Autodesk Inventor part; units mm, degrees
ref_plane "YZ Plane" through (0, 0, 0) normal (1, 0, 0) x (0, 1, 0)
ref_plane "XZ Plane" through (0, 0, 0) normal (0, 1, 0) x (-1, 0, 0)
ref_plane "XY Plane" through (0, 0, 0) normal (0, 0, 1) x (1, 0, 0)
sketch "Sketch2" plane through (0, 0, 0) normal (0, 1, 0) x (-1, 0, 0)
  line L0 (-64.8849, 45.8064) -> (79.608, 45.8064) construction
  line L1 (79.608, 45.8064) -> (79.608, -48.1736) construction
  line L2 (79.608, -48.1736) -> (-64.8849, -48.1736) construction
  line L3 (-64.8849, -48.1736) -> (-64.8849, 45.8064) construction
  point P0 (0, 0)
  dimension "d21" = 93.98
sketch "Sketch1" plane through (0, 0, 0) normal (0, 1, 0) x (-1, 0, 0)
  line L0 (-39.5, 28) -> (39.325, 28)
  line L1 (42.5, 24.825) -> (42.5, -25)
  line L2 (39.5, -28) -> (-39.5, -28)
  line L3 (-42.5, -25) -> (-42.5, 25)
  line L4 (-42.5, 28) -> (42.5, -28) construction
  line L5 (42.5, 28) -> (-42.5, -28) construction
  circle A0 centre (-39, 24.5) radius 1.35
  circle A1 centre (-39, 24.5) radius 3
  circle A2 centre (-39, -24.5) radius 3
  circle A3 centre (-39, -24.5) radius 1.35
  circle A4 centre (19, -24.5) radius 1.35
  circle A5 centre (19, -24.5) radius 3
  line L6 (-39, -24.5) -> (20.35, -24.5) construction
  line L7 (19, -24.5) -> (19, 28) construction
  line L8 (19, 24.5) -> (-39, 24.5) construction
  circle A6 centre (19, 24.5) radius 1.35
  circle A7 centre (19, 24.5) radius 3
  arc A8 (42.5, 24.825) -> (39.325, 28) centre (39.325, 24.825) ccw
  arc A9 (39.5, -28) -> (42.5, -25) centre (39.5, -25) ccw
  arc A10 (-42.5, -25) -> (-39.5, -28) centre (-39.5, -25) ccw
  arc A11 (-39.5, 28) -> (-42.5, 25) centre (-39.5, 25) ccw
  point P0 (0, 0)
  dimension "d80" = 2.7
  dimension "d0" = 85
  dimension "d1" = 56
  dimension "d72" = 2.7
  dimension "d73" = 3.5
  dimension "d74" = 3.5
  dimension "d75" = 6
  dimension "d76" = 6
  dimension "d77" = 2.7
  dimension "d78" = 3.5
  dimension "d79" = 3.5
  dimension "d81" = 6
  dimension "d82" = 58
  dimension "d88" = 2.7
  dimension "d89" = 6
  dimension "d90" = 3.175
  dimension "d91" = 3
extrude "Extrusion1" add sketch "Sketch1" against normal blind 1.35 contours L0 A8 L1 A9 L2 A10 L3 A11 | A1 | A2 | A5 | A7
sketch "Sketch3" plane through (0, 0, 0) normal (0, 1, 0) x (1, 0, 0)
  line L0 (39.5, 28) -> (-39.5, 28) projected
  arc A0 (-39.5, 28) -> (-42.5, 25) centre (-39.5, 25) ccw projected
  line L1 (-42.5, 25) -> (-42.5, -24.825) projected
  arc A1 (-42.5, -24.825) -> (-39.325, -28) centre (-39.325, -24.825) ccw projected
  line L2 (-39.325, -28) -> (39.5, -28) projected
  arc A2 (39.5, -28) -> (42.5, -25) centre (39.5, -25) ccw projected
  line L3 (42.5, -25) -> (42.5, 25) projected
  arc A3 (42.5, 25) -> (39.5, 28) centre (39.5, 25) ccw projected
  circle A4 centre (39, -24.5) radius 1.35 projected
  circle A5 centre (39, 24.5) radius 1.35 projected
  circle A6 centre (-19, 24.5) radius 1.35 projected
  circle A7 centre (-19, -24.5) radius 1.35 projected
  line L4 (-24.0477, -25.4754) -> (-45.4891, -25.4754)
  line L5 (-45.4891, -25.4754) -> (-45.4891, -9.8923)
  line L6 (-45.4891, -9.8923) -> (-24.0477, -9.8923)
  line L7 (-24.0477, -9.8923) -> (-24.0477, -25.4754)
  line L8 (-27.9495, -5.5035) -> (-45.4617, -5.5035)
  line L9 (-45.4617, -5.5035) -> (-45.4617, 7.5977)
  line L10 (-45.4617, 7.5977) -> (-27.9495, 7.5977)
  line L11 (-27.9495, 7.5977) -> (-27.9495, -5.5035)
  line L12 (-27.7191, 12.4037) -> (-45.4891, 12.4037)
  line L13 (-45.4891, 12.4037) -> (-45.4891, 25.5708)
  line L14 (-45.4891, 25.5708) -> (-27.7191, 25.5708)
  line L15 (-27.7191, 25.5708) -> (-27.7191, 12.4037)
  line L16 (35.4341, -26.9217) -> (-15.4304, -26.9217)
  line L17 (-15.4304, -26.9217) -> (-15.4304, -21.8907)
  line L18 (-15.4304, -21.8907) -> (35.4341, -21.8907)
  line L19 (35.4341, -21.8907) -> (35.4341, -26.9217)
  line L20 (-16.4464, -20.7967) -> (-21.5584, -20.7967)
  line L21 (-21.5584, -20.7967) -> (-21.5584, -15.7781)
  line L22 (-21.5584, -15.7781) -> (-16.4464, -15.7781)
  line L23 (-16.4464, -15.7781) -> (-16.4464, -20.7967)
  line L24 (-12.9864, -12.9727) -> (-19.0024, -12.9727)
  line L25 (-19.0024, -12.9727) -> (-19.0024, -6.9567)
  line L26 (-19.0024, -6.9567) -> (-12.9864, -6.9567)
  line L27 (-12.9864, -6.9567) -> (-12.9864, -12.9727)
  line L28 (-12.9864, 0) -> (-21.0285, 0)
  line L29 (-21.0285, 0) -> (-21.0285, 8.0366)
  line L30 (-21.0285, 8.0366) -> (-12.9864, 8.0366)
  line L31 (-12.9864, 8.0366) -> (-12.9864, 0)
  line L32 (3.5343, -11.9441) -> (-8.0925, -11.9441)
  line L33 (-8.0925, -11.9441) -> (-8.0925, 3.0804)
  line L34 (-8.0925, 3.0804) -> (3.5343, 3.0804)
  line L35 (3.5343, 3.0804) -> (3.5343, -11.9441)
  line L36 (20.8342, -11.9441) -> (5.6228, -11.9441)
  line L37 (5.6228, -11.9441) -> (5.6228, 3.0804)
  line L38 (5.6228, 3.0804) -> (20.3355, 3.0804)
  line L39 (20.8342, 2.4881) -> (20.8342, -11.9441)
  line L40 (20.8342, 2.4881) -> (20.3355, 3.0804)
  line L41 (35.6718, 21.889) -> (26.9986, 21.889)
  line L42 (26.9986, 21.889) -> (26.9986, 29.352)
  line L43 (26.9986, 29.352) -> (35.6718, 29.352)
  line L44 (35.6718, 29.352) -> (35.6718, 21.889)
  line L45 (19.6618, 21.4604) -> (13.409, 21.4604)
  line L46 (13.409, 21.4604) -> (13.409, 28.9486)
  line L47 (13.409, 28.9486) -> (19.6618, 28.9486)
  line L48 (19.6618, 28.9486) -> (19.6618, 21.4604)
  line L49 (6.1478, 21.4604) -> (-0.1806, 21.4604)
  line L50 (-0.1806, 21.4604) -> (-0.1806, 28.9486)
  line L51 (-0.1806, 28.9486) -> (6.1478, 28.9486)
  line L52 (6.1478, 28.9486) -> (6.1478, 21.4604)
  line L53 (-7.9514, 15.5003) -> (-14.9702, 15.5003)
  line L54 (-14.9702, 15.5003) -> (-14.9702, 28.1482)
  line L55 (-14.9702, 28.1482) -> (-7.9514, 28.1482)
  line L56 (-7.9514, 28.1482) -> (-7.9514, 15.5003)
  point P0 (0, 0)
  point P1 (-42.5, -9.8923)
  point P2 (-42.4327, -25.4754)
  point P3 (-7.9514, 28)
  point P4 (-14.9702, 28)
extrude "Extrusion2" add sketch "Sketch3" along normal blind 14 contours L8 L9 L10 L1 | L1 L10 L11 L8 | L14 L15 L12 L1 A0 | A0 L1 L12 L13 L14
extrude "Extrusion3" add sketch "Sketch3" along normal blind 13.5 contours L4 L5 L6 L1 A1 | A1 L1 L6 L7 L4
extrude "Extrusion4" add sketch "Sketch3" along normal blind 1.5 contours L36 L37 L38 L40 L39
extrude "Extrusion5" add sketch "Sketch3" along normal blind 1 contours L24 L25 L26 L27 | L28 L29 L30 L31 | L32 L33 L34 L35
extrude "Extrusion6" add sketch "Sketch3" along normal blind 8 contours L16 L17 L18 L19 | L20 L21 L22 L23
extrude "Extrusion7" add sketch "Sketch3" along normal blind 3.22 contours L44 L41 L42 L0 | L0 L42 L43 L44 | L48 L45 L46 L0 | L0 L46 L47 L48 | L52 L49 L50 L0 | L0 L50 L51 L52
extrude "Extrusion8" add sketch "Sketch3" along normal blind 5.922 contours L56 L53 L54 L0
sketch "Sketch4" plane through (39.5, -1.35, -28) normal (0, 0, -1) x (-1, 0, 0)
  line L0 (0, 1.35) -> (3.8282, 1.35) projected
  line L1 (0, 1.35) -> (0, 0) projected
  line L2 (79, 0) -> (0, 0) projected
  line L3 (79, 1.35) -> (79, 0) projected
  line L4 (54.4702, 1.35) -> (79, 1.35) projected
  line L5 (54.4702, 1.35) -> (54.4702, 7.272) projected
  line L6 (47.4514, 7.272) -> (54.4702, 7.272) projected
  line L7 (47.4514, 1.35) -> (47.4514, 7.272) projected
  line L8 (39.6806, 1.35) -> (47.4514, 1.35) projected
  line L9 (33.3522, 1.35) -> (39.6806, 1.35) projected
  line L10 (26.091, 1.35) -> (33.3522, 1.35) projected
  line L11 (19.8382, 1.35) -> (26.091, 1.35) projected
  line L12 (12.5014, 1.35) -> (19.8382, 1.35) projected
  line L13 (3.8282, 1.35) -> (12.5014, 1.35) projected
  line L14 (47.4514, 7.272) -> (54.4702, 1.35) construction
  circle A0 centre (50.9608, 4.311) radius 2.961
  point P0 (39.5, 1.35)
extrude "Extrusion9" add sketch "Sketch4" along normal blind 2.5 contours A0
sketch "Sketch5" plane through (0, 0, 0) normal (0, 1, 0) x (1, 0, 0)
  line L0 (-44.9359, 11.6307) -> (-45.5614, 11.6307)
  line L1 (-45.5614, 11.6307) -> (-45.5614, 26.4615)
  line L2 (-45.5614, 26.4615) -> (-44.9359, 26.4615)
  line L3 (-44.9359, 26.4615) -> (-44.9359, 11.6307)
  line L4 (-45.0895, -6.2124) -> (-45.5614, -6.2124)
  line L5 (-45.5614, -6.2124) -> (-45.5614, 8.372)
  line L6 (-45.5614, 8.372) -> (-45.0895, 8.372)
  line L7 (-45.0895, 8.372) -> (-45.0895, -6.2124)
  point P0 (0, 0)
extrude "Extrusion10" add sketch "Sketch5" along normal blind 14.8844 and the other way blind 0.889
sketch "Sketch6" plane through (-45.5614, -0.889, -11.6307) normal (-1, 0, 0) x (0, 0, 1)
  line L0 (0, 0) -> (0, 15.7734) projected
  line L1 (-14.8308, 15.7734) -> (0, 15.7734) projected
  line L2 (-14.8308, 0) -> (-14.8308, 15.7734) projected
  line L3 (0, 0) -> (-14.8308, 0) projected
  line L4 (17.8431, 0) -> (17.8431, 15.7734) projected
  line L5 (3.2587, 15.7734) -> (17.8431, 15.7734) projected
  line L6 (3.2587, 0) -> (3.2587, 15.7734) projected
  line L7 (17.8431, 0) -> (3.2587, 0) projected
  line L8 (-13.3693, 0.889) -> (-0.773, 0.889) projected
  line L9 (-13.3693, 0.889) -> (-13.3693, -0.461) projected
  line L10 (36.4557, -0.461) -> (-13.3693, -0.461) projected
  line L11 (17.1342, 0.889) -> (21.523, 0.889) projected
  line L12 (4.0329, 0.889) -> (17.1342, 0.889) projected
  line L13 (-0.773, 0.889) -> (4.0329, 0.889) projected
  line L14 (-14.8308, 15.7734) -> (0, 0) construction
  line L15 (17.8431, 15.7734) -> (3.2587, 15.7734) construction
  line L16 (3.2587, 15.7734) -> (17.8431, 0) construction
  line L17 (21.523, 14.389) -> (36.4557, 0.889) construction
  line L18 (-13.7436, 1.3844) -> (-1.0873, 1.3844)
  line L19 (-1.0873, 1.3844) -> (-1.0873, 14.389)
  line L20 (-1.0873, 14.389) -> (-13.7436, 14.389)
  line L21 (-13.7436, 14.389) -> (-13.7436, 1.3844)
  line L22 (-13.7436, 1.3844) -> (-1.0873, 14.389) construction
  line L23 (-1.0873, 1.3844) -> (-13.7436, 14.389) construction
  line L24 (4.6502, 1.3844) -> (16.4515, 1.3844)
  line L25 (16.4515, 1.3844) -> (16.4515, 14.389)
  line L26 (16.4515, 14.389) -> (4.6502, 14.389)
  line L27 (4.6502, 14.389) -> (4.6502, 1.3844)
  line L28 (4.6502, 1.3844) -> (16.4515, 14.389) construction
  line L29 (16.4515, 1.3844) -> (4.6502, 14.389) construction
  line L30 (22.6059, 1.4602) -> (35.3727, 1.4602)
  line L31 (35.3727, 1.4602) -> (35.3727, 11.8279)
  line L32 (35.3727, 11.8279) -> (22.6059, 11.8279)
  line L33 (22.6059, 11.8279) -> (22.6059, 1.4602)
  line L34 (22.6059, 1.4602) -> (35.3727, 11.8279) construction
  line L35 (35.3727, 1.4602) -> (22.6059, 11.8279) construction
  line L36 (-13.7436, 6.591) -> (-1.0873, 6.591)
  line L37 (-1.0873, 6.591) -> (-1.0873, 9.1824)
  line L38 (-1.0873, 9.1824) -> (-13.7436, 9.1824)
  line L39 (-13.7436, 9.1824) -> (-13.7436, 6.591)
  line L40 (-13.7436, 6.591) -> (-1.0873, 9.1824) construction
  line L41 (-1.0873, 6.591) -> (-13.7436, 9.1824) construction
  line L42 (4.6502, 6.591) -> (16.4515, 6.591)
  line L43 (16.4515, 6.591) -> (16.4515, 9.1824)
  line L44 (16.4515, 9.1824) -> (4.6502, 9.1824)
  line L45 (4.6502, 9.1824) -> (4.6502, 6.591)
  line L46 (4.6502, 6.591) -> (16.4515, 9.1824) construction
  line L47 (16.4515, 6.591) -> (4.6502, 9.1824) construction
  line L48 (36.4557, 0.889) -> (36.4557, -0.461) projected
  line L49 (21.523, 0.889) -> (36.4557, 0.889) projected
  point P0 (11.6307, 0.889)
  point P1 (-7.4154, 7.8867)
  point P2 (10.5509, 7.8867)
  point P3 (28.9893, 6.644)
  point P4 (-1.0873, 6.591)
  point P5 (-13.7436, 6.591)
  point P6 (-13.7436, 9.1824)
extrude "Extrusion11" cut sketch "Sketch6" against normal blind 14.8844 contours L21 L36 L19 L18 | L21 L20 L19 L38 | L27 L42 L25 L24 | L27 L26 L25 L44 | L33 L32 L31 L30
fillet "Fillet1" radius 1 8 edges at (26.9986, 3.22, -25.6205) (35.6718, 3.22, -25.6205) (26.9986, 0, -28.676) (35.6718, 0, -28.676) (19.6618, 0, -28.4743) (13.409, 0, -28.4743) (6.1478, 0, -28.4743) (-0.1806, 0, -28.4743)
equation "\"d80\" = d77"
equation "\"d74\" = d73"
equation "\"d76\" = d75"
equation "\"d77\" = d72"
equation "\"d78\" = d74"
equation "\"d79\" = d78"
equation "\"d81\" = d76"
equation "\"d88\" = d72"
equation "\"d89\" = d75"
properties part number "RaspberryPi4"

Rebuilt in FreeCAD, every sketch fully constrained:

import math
import FreeCAD as App
import Part
import Sketcher
from FreeCAD import Vector


def edges_at(feature, points):
    """Names of the edges that pass closest to the given points."""
    edges = feature.Shape.Edges
    near = lambda p: min(range(len(edges)), key=lambda i: edges[i].distToShape(Part.Vertex(*p))[0])
    return sorted({f"Edge{near(p) + 1}" for p in points})


def add_polygon(sketch, points):
    """Adds a closed chain of lines whose ends are joined by coincident constraints."""
    first, n = sketch.GeometryCount, len(points)
    for a, b in zip(points, points[1:] + points[:1]):
        sketch.addGeometry(Part.LineSegment(App.Vector(*a, 0), App.Vector(*b, 0)), False)
    for i in range(n):
        sketch.addConstraint(Sketcher.Constraint("Coincident", first + i, 2, first + (i + 1) % n, 1))

doc = App.newDocument("Part")
params = doc.addObject("Spreadsheet::Sheet", "Params")
for row, (alias, value) in enumerate([
    ("sketch1_radius", "3 mm"),
    ("sketch1_diameter", "2.7 mm"),
    ("sketch1_width", "79 mm"),
    ("sketch1_height", "50 mm"),
    ("pad1_length", "1.35 mm"),
    ("sketch2_width", "17.77 mm"),
    ("pad2_length", "14 mm"),
    ("pad3_length", "13.5 mm"),
    ("pad4_length", "1.5 mm"),
    ("pad5_length", "1 mm"),
    ("pad6_length", "8 mm"),
    ("pad7_length", "3.22 mm"),
    ("pad8_length", "5.922 mm"),
    ("pad9_length", "2.5 mm"),
    ("pad10_length", "14.8844 mm"),
    ("pad10_length2", "0.889 mm"),
    ("pocket1_length", "14.8844 mm"),
    ("fillet_radius", "1 mm"),
], start=1):
    params.set(f"A{row}", alias)
    params.set(f"B{row}", "=" + value)
    params.setAlias(f"B{row}", alias)

body = doc.addObject("PartDesign::Body", "Body")

# Sketch on XZ plane
sketch1 = doc.addObject("Sketcher::SketchObject", "Sketch")
body.addObject(sketch1)
sketch1.AttachmentSupport = (doc.XZ_Plane, [""])
sketch1.MapMode = "FlatFace"
sketch1.addGeometry(Part.LineSegment(Vector(-39.325, 28, 0), Vector(39.5, 28, 0)), False)
sketch1.addGeometry(Part.ArcOfCircle(Part.Circle(Vector(39.5, 25, 0), Vector(0, 0, 1), 3), math.radians(0), math.radians(90)), False)
sketch1.addGeometry(Part.LineSegment(Vector(42.5, 25, 0), Vector(42.5, -25, 0)), False)
sketch1.addGeometry(Part.ArcOfCircle(Part.Circle(Vector(39.5, -25, 0), Vector(0, 0, 1), 3), math.radians(-90), math.radians(0)), False)
sketch1.addGeometry(Part.LineSegment(Vector(39.5, -28, 0), Vector(-39.5, -28, 0)), False)
sketch1.addGeometry(Part.ArcOfCircle(Part.Circle(Vector(-39.5, -25, 0), Vector(0, 0, 1), 3), math.radians(180), math.radians(270)), False)
sketch1.addGeometry(Part.LineSegment(Vector(-42.5, -25, 0), Vector(-42.5, 24.825, 0)), False)
sketch1.addGeometry(Part.ArcOfCircle(Part.Circle(Vector(-39.325, 24.825, 0), Vector(0, 0, 1), 3.175), math.radians(90), math.radians(180)), False)
sketch1.addGeometry(Part.Circle(Vector(39, -24.5, 0), Vector(0, 0, 1), 1.35), False)
sketch1.addGeometry(Part.Circle(Vector(-19, -24.5, 0), Vector(0, 0, 1), 1.35), False)
sketch1.addGeometry(Part.Circle(Vector(39, 24.5, 0), Vector(0, 0, 1), 1.35), False)
sketch1.addGeometry(Part.Circle(Vector(-19, 24.5, 0), Vector(0, 0, 1), 1.35), False)
sketch1.addConstraint(Sketcher.Constraint("Tangent", 0, 2, 1, 2))
sketch1.addConstraint(Sketcher.Constraint("Tangent", 1, 1, 2, 1))
sketch1.addConstraint(Sketcher.Constraint("Tangent", 2, 2, 3, 2))
sketch1.addConstraint(Sketcher.Constraint("Tangent", 3, 1, 4, 1))
sketch1.addConstraint(Sketcher.Constraint("Tangent", 4, 2, 5, 2))
sketch1.addConstraint(Sketcher.Constraint("Tangent", 5, 1, 6, 1))
sketch1.addConstraint(Sketcher.Constraint("Tangent", 6, 2, 7, 2))
sketch1.addConstraint(Sketcher.Constraint("Tangent", 7, 1, 0, 1))
sketch1.addConstraint(Sketcher.Constraint("Horizontal", 0))
sketch1.addConstraint(Sketcher.Constraint("Vertical", 2))
sketch1.addConstraint(Sketcher.Constraint("Horizontal", 4))
sketch1.addConstraint(Sketcher.Constraint("Vertical", 6))
sketch1.addConstraint(Sketcher.Constraint("Equal", 1, 3))
sketch1.addConstraint(Sketcher.Constraint("Equal", 3, 5))
sketch1.addConstraint(Sketcher.Constraint("Equal", 8, 9))
sketch1.addConstraint(Sketcher.Constraint("Equal", 9, 10))
sketch1.addConstraint(Sketcher.Constraint("Equal", 10, 11))
sketch1.addConstraint(Sketcher.Constraint("Symmetric", 1, 3, 5, 3, -1, 1))
sketch1.addConstraint(Sketcher.Constraint("Symmetric", 8, 3, 10, 3, -1))
sketch1.addConstraint(Sketcher.Constraint("Symmetric", 9, 3, 11, 3, -1))
sketch1.addConstraint(Sketcher.Constraint("Horizontal", 8, 3, 9, 3))
sketch1.addConstraint(Sketcher.Constraint("Radius", 1, 3.0))
sketch1.addConstraint(Sketcher.Constraint("Diameter", 8, 2.7))
sketch1.addConstraint(Sketcher.Constraint("Radius", 7, 3.175))
sketch1.addConstraint(Sketcher.Constraint("DistanceX", 9, 3, 8, 3, 58.0))
sketch1.addConstraint(Sketcher.Constraint("DistanceY", 10, 3, 0, 2, 3.5))
sketch1.addConstraint(Sketcher.Constraint("DistanceX", 10, 3, 1, 1, 3.5))
sketch1.addConstraint(Sketcher.Constraint("DistanceX", 4, 2, 4, 1, 79.0))
sketch1.addConstraint(Sketcher.Constraint("DistanceY", 2, 2, 2, 1, 50.0))
sketch1.setExpression("Constraints[21]", "Params.sketch1_radius")
sketch1.setExpression("Constraints[22]", "Params.sketch1_diameter")
sketch1.setExpression("Constraints[27]", "Params.sketch1_width")
sketch1.setExpression("Constraints[28]", "Params.sketch1_height")
pad1 = doc.addObject("PartDesign::Pad", "Pad")
body.addObject(pad1)
pad1.Profile = sketch1
pad1.setExpression("Length", "Params.pad1_length")

# Sketch on XZ plane
sketch2 = doc.addObject("Sketcher::SketchObject", "Sketch001")
body.addObject(sketch2)
sketch2.AttachmentSupport = (doc.XZ_Plane, [""])
sketch2.MapMode = "FlatFace"
add_polygon(sketch2, [(-45.4617, 5.5035), (-27.9495, 5.5035), (-27.9495, -7.5977), (-45.4617, -7.5977)])  # lines 0-3
add_polygon(sketch2, [(-27.7191, -25.5708), (-45.4891, -25.5708), (-45.4891, -12.4037), (-27.7191, -12.4037)])  # lines 4-7
sketch2.addConstraint(Sketcher.Constraint("Horizontal", 0))
sketch2.addConstraint(Sketcher.Constraint("Vertical", 1))
sketch2.addConstraint(Sketcher.Constraint("Horizontal", 2))
sketch2.addConstraint(Sketcher.Constraint("Vertical", 3))
sketch2.addConstraint(Sketcher.Constraint("Horizontal", 4))
sketch2.addConstraint(Sketcher.Constraint("Vertical", 5))
sketch2.addConstraint(Sketcher.Constraint("Horizontal", 6))
sketch2.addConstraint(Sketcher.Constraint("Vertical", 7))
sketch2.addConstraint(Sketcher.Constraint("DistanceX", 4, 2, 4, 1, 17.77))
sketch2.addConstraint(Sketcher.Constraint("DistanceY", 5, 1, 5, 2, 13.167))
sketch2.addConstraint(Sketcher.Constraint("DistanceX", 0, 1, 0, 2, 17.5122))
sketch2.addConstraint(Sketcher.Constraint("DistanceY", 1, 2, 1, 1, 13.1012))
sketch2.addConstraint(Sketcher.Constraint("DistanceX", 4, 2, -1, 1, 45.489))
sketch2.addConstraint(Sketcher.Constraint("DistanceY", 4, 2, 2, 2, 17.973))
sketch2.addConstraint(Sketcher.Constraint("DistanceX", 0, 2, -1, 1, 27.9495))
sketch2.addConstraint(Sketcher.Constraint("DistanceY", -1, 1, 0, 2, 5.5035))
sketch2.setExpression("Constraints[16]", "Params.sketch2_width")
pad2 = doc.addObject("PartDesign::Pad", "Pad001")
body.addObject(pad2)
pad2.Profile = sketch2
pad2.setExpression("Length", "Params.pad2_length")
pad2.Reversed = True

# Sketch on XZ plane
sketch3 = doc.addObject("Sketcher::SketchObject", "Sketch002")
body.addObject(sketch3)
sketch3.AttachmentSupport = (doc.XZ_Plane, [""])
sketch3.MapMode = "FlatFace"
add_polygon(sketch3, [(-45.4891, 25.4754), (-24.0477, 25.4754), (-24.0477, 9.8923), (-45.4891, 9.8923)])  # lines 0-3
sketch3.addConstraint(Sketcher.Constraint("Horizontal", 0))
sketch3.addConstraint(Sketcher.Constraint("Vertical", 1))
sketch3.addConstraint(Sketcher.Constraint("Horizontal", 2))
sketch3.addConstraint(Sketcher.Constraint("Vertical", 3))
sketch3.addConstraint(Sketcher.Constraint("DistanceY", 1, 2, 1, 1, 15.583))
sketch3.addConstraint(Sketcher.Constraint("DistanceX", 0, 1, 0, 2, 21.4414))
sketch3.addConstraint(Sketcher.Constraint("DistanceX", 2, 2, -1, 1, 45.489))
sketch3.addConstraint(Sketcher.Constraint("DistanceY", -1, 1, 0, 2, 25.4754))
pad3 = doc.addObject("PartDesign::Pad", "Pad002")
body.addObject(pad3)
pad3.Profile = sketch3
pad3.setExpression("Length", "Params.pad3_length")
pad3.Reversed = True

# Sketch on XZ plane
sketch4 = doc.addObject("Sketcher::SketchObject", "Sketch003")
body.addObject(sketch4)
sketch4.AttachmentSupport = (doc.XZ_Plane, [""])
sketch4.MapMode = "FlatFace"
add_polygon(sketch4, [(5.6228, 11.9441), (20.8342, 11.9441), (20.8342, -2.4881), (20.3355, -3.0804), (5.6228, -3.0804)])  # lines 0-4
sketch4.addConstraint(Sketcher.Constraint("Horizontal", 0))
sketch4.addConstraint(Sketcher.Constraint("Vertical", 1))
sketch4.addConstraint(Sketcher.Constraint("Horizontal", 3))
sketch4.addConstraint(Sketcher.Constraint("Vertical", 4))
sketch4.addConstraint(Sketcher.Constraint("DistanceX", 0, 1, 0, 2, 15.2114))
sketch4.addConstraint(Sketcher.Constraint("DistanceX", 3, 2, 3, 1, 14.7127))
sketch4.addConstraint(Sketcher.Constraint("DistanceY", 1, 2, 1, 1, 14.4322))
sketch4.addConstraint(Sketcher.Constraint("DistanceY", 4, 1, 4, 2, 15.0245))
sketch4.addConstraint(Sketcher.Constraint("DistanceY", -1, 1, 0, 2, 11.944))
sketch4.addConstraint(Sketcher.Constraint("DistanceX", -1, 1, 0, 2, 20.8342))
pad4 = doc.addObject("PartDesign::Pad", "Pad003")
body.addObject(pad4)
pad4.Profile = sketch4
pad4.setExpression("Length", "Params.pad4_length")
pad4.Reversed = True

# Sketch on XZ plane
sketch5 = doc.addObject("Sketcher::SketchObject", "Sketch004")
body.addObject(sketch5)
sketch5.AttachmentSupport = (doc.XZ_Plane, [""])
sketch5.MapMode = "FlatFace"
add_polygon(sketch5, [(-19.0024, 12.9727), (-12.9864, 12.9727), (-12.9864, 6.9567), (-19.0024, 6.9567)])  # lines 0-3
add_polygon(sketch5, [(-21.0285, 0), (-12.9864, 0), (-12.9864, -8.0366), (-21.0285, -8.0366)])  # lines 4-7
add_polygon(sketch5, [(-8.0925, 11.9441), (3.5343, 11.9441), (3.5343, -3.0804), (-8.0925, -3.0804)])  # lines 8-11
sketch5.addConstraint(Sketcher.Constraint("Horizontal", 0))
sketch5.addConstraint(Sketcher.Constraint("Vertical", 1))
sketch5.addConstraint(Sketcher.Constraint("Horizontal", 2))
sketch5.addConstraint(Sketcher.Constraint("Vertical", 3))
sketch5.addConstraint(Sketcher.Constraint("Horizontal", 4))
sketch5.addConstraint(Sketcher.Constraint("Vertical", 5))
sketch5.addConstraint(Sketcher.Constraint("Horizontal", 6))
sketch5.addConstraint(Sketcher.Constraint("Vertical", 7))
sketch5.addConstraint(Sketcher.Constraint("Horizontal", 8))
sketch5.addConstraint(Sketcher.Constraint("Vertical", 9))
sketch5.addConstraint(Sketcher.Constraint("Horizontal", 10))
sketch5.addConstraint(Sketcher.Constraint("Vertical", 11))
sketch5.addConstraint(Sketcher.Constraint("PointOnObject", 4, 2, -1))
sketch5.addConstraint(Sketcher.Constraint("Vertical", 1, 2, 4, 2))
sketch5.addConstraint(Sketcher.Constraint("Equal", 2, 1))
sketch5.addConstraint(Sketcher.Constraint("DistanceX", 0, 1, 0, 2, 6.016))
sketch5.addConstraint(Sketcher.Constraint("DistanceX", 4, 1, 4, 2, 8.042))
sketch5.addConstraint(Sketcher.Constraint("DistanceX", 3, 2, 11, 2, 10.91))
sketch5.addConstraint(Sketcher.Constraint("DistanceX", 8, 1, 8, 2, 11.6268))
sketch5.addConstraint(Sketcher.Constraint("DistanceY", 5, 2, 5, 1, 8.0366))
sketch5.addConstraint(Sketcher.Constraint("DistanceY", 9, 2, 9, 1, 15.0245))
sketch5.addConstraint(Sketcher.Constraint("DistanceY", -1, 1, 8, 2, 11.944))
sketch5.addConstraint(Sketcher.Constraint("DistanceY", 9, 2, 1, 2, 10.037))
sketch5.addConstraint(Sketcher.Constraint("DistanceX", 0, 2, -1, 1, 12.9864))
pad5 = doc.addObject("PartDesign::Pad", "Pad004")
body.addObject(pad5)
pad5.Profile = sketch5
pad5.setExpression("Length", "Params.pad5_length")
pad5.Reversed = True

# Sketch on XZ plane
sketch6 = doc.addObject("Sketcher::SketchObject", "Sketch005")
body.addObject(sketch6)
sketch6.AttachmentSupport = (doc.XZ_Plane, [""])
sketch6.MapMode = "FlatFace"
add_polygon(sketch6, [(-15.4304, 26.9217), (35.4341, 26.9217), (35.4341, 21.8907), (-15.4304, 21.8907)])  # lines 0-3
add_polygon(sketch6, [(-21.5584, 20.7967), (-16.4464, 20.7967), (-16.4464, 15.7781), (-21.5584, 15.7781)])  # lines 4-7
sketch6.addConstraint(Sketcher.Constraint("Horizontal", 0))
sketch6.addConstraint(Sketcher.Constraint("Vertical", 1))
sketch6.addConstraint(Sketcher.Constraint("Horizontal", 2))
sketch6.addConstraint(Sketcher.Constraint("Vertical", 3))
sketch6.addConstraint(Sketcher.Constraint("Horizontal", 4))
sketch6.addConstraint(Sketcher.Constraint("Vertical", 5))
sketch6.addConstraint(Sketcher.Constraint("Horizontal", 6))
sketch6.addConstraint(Sketcher.Constraint("Vertical", 7))
sketch6.addConstraint(Sketcher.Constraint("DistanceX", 4, 1, 4, 2, 5.112))
sketch6.addConstraint(Sketcher.Constraint("DistanceY", 1, 2, 1, 1, 5.031))
sketch6.addConstraint(Sketcher.Constraint("DistanceX", 0, 1, 0, 2, 50.8645))
sketch6.addConstraint(Sketcher.Constraint("DistanceY", 5, 2, 5, 1, 5.0186))
sketch6.addConstraint(Sketcher.Constraint("DistanceX", -1, 1, 0, 2, 35.434))
sketch6.addConstraint(Sketcher.Constraint("DistanceY", -1, 1, 5, 2, 15.778))
sketch6.addConstraint(Sketcher.Constraint("DistanceX", 4, 2, 2, 2, 1.016))
sketch6.addConstraint(Sketcher.Constraint("DistanceY", 4, 2, 2, 2, 1.094))
pad6 = doc.addObject("PartDesign::Pad", "Pad005")
body.addObject(pad6)
pad6.Profile = sketch6
pad6.setExpression("Length", "Params.pad6_length")
pad6.Reversed = True

# Sketch on XZ plane
sketch7 = doc.addObject("Sketcher::SketchObject", "Sketch006")
body.addObject(sketch7)
sketch7.AttachmentSupport = (doc.XZ_Plane, [""])
sketch7.MapMode = "FlatFace"
add_polygon(sketch7, [(35.6718, -21.889), (35.6718, -29.352), (26.9986, -29.352), (26.9986, -21.889)])  # lines 0-3
add_polygon(sketch7, [(19.6618, -21.4604), (19.6618, -28.9486), (13.409, -28.9486), (13.409, -21.4604)])  # lines 4-7
add_polygon(sketch7, [(6.1478, -21.4604), (6.1478, -28.9486), (-0.1806, -28.9486), (-0.1806, -21.4604)])  # lines 8-11
sketch7.addConstraint(Sketcher.Constraint("Vertical", 0))
sketch7.addConstraint(Sketcher.Constraint("Horizontal", 1))
sketch7.addConstraint(Sketcher.Constraint("Vertical", 2))
sketch7.addConstraint(Sketcher.Constraint("Horizontal", 3))
sketch7.addConstraint(Sketcher.Constraint("Vertical", 4))
sketch7.addConstraint(Sketcher.Constraint("Horizontal", 5))
sketch7.addConstraint(Sketcher.Constraint("Vertical", 6))
sketch7.addConstraint(Sketcher.Constraint("Horizontal", 7))
sketch7.addConstraint(Sketcher.Constraint("Vertical", 8))
sketch7.addConstraint(Sketcher.Constraint("Horizontal", 9))
sketch7.addConstraint(Sketcher.Constraint("Vertical", 10))
sketch7.addConstraint(Sketcher.Constraint("Horizontal", 11))
sketch7.addConstraint(Sketcher.Constraint("Horizontal", 5, 2, 8, 2))
sketch7.addConstraint(Sketcher.Constraint("Horizontal", 7, 2, 10, 2))
sketch7.addConstraint(Sketcher.Constraint("DistanceY", 0, 2, 0, 1, 7.463))
sketch7.addConstraint(Sketcher.Constraint("DistanceX", 4, 2, 0, 2, 16.01))
sketch7.addConstraint(Sketcher.Constraint("DistanceX", 1, 2, 1, 1, 8.6732))
sketch7.addConstraint(Sketcher.Constraint("DistanceX", 5, 2, 5, 1, 6.2528))
sketch7.addConstraint(Sketcher.Constraint("DistanceX", 9, 2, 9, 1, 6.3284))
sketch7.addConstraint(Sketcher.Constraint("DistanceY", 4, 2, 4, 1, 7.4882))
sketch7.addConstraint(Sketcher.Constraint("DistanceY", 0, 2, -1, 1, 29.352))
sketch7.addConstraint(Sketcher.Constraint("DistanceX", -1, 1, 5, 2, 13.409))
sketch7.addConstraint(Sketcher.Constraint("DistanceX", 8, 2, 4, 2, 13.514))
sketch7.addConstraint(Sketcher.Constraint("DistanceY", 4, 2, -1, 1, 28.9486))
pad7 = doc.addObject("PartDesign::Pad", "Pad006")
body.addObject(pad7)
pad7.Profile = sketch7
pad7.setExpression("Length", "Params.pad7_length")
pad7.Reversed = True

# Sketch on XZ plane
sketch8 = doc.addObject("Sketcher::SketchObject", "Sketch007")
body.addObject(sketch8)
sketch8.AttachmentSupport = (doc.XZ_Plane, [""])
sketch8.MapMode = "FlatFace"
add_polygon(sketch8, [(-7.9514, -15.5003), (-7.9514, -28), (-14.9702, -28), (-14.9702, -15.5003)])  # lines 0-3
sketch8.addConstraint(Sketcher.Constraint("Vertical", 0))
sketch8.addConstraint(Sketcher.Constraint("Horizontal", 1))
sketch8.addConstraint(Sketcher.Constraint("Vertical", 2))
sketch8.addConstraint(Sketcher.Constraint("Horizontal", 3))
sketch8.addConstraint(Sketcher.Constraint("DistanceY", 0, 2, -1, 1, 28.0))
sketch8.addConstraint(Sketcher.Constraint("DistanceX", 1, 2, 1, 1, 7.0188))
sketch8.addConstraint(Sketcher.Constraint("DistanceY", 0, 2, 0, 1, 12.4997))
sketch8.addConstraint(Sketcher.Constraint("DistanceX", 0, 2, -1, 1, 7.9514))
pad8 = doc.addObject("PartDesign::Pad", "Pad007")
body.addObject(pad8)
pad8.Profile = sketch8
pad8.setExpression("Length", "Params.pad8_length")
pad8.Reversed = True

# Sketch on XY plane
sketch9 = doc.addObject("Sketcher::SketchObject", "Sketch008")
body.addObject(sketch9)
sketch9.AttachmentSupport = (doc.XY_Plane, [""])
sketch9.MapMode = "FlatFace"
sketch9.AttachmentOffset = App.Placement(Vector(0, 0, -28), App.Rotation())
sketch9.addGeometry(Part.Circle(Vector(-11.4608, 2.961, 0), Vector(0, 0, 1), 2.961), False)
sketch9.addConstraint(Sketcher.Constraint("Diameter", 0, 5.922))
sketch9.addConstraint(Sketcher.Constraint("DistanceY", -1, 1, 0, 3, 2.961))
sketch9.addConstraint(Sketcher.Constraint("DistanceX", 0, 3, -1, 1, 11.4608))
pad9 = doc.addObject("PartDesign::Pad", "Pad008")
body.addObject(pad9)
pad9.Profile = sketch9
pad9.setExpression("Length", "Params.pad9_length")
pad9.Reversed = True

# Sketch on XZ plane
sketch10 = doc.addObject("Sketcher::SketchObject", "Sketch009")
body.addObject(sketch10)
sketch10.AttachmentSupport = (doc.XZ_Plane, [""])
sketch10.MapMode = "FlatFace"
add_polygon(sketch10, [(-45.5614, -11.6307), (-44.9359, -11.6307), (-44.9359, -26.4615), (-45.5614, -26.4615)])  # lines 0-3
add_polygon(sketch10, [(-45.5614, 6.2124), (-45.0895, 6.2124), (-45.0895, -8.372), (-45.5614, -8.372)])  # lines 4-7
sketch10.addConstraint(Sketcher.Constraint("Horizontal", 0))
sketch10.addConstraint(Sketcher.Constraint("Vertical", 1))
sketch10.addConstraint(Sketcher.Constraint("Horizontal", 2))
sketch10.addConstraint(Sketcher.Constraint("Vertical", 3))
sketch10.addConstraint(Sketcher.Constraint("Horizontal", 4))
sketch10.addConstraint(Sketcher.Constraint("Vertical", 5))
sketch10.addConstraint(Sketcher.Constraint("Horizontal", 6))
sketch10.addConstraint(Sketcher.Constraint("Vertical", 7))
sketch10.addConstraint(Sketcher.Constraint("Vertical", 3, 2, 6, 2))
sketch10.addConstraint(Sketcher.Constraint("DistanceX", 4, 1, 4, 2, 0.472))
sketch10.addConstraint(Sketcher.Constraint("DistanceX", 0, 1, 0, 2, 0.6255))
sketch10.addConstraint(Sketcher.Constraint("DistanceY", 1, 2, 1, 1, 14.8308))
sketch10.addConstraint(Sketcher.Constraint("DistanceY", 5, 2, 5, 1, 14.5844))
sketch10.addConstraint(Sketcher.Constraint("DistanceX", 0, 2, -1, 1, 44.936))
sketch10.addConstraint(Sketcher.Constraint("DistanceY", 5, 2, -1, 1, 8.372))
sketch10.addConstraint(Sketcher.Constraint("DistanceY", 0, 2, 4, 2, 17.843))
pad10 = doc.addObject("PartDesign::Pad", "Pad009")
body.addObject(pad10)
pad10.Profile = sketch10
pad10.Type = "TwoLengths"
pad10.setExpression("Length", "Params.pad10_length")
pad10.setExpression("Length2", "Params.pad10_length2")
pad10.Reversed = True

# Sketch on YZ plane
sketch11 = doc.addObject("Sketcher::SketchObject", "Sketch010")
body.addObject(sketch11)
sketch11.AttachmentSupport = (doc.YZ_Plane, [""])
sketch11.MapMode = "FlatFace"
sketch11.AttachmentOffset = App.Placement(Vector(0, 0, -45.5614), App.Rotation())
add_polygon(sketch11, [(5.702, -25.3743), (0.4954, -25.3743), (0.4954, -12.718), (5.702, -12.718)])  # lines 0-3
add_polygon(sketch11, [(13.5, -25.3743), (8.2934, -25.3743), (8.2934, -12.718), (13.5, -12.718)])  # lines 4-7
add_polygon(sketch11, [(5.702, -6.9805), (0.4954, -6.9805), (0.4954, 4.8208), (5.702, 4.8208)])  # lines 8-11
add_polygon(sketch11, [(13.5, -6.9805), (8.2934, -6.9805), (8.2934, 4.8208), (13.5, 4.8208)])  # lines 12-15
add_polygon(sketch11, [(10.9389, 10.9752), (0.5712, 10.9752), (0.5712, 23.742), (10.9389, 23.742)])  # lines 16-19
sketch11.addConstraint(Sketcher.Constraint("Horizontal", 0))
sketch11.addConstraint(Sketcher.Constraint("Vertical", 1))
sketch11.addConstraint(Sketcher.Constraint("Horizontal", 2))
sketch11.addConstraint(Sketcher.Constraint("Vertical", 3))
sketch11.addConstraint(Sketcher.Constraint("Horizontal", 4))
sketch11.addConstraint(Sketcher.Constraint("Vertical", 5))
sketch11.addConstraint(Sketcher.Constraint("Horizontal", 6))
sketch11.addConstraint(Sketcher.Constraint("Vertical", 7))
sketch11.addConstraint(Sketcher.Constraint("Horizontal", 8))
sketch11.addConstraint(Sketcher.Constraint("Vertical", 9))
sketch11.addConstraint(Sketcher.Constraint("Horizontal", 10))
sketch11.addConstraint(Sketcher.Constraint("Vertical", 11))
sketch11.addConstraint(Sketcher.Constraint("Horizontal", 12))
sketch11.addConstraint(Sketcher.Constraint("Vertical", 13))
sketch11.addConstraint(Sketcher.Constraint("Horizontal", 14))
sketch11.addConstraint(Sketcher.Constraint("Vertical", 15))
sketch11.addConstraint(Sketcher.Constraint("Horizontal", 16))
sketch11.addConstraint(Sketcher.Constraint("Vertical", 17))
sketch11.addConstraint(Sketcher.Constraint("Horizontal", 18))
sketch11.addConstraint(Sketcher.Constraint("Vertical", 19))
sketch11.addConstraint(Sketcher.Constraint("Horizontal", 3, 2, 4, 2))
sketch11.addConstraint(Sketcher.Constraint("Horizontal", 2, 2, 5, 2))
sketch11.addConstraint(Sketcher.Constraint("Horizontal", 11, 2, 12, 2))
sketch11.addConstraint(Sketcher.Constraint("Horizontal", 10, 2, 13, 2))
sketch11.addConstraint(Sketcher.Constraint("Vertical", 1, 2, 8, 2))
sketch11.addConstraint(Sketcher.Constraint("Vertical", 3, 2, 10, 2))
sketch11.addConstraint(Sketcher.Constraint("Vertical", 5, 2, 12, 2))
sketch11.addConstraint(Sketcher.Constraint("Vertical", 7, 2, 14, 2))
sketch11.addConstraint(Sketcher.Constraint("Equal", 2, 4))
sketch11.addConstraint(Sketcher.Constraint("DistanceX", -1, 1, 6, 2, 13.5))
sketch11.addConstraint(Sketcher.Constraint("DistanceX", 0, 2, 0, 1, 5.2066))
sketch11.addConstraint(Sketcher.Constraint("DistanceX", 16, 2, 16, 1, 10.3677))
sketch11.addConstraint(Sketcher.Constraint("DistanceY", 1, 1, 1, 2, 12.6563))
sketch11.addConstraint(Sketcher.Constraint("DistanceY", 9, 1, 9, 2, 11.8013))
sketch11.addConstraint(Sketcher.Constraint("DistanceY", 17, 1, 17, 2, 12.7668))
sketch11.addConstraint(Sketcher.Constraint("DistanceY", 1, 2, -1, 1, 12.718))
sketch11.addConstraint(Sketcher.Constraint("DistanceX", -1, 1, 2, 2, 5.702))
sketch11.addConstraint(Sketcher.Constraint("DistanceY", -1, 1, 17, 2, 23.742))
sketch11.addConstraint(Sketcher.Constraint("DistanceX", -1, 1, 18, 2, 10.939))
sketch11.addConstraint(Sketcher.Constraint("DistanceY", 8, 2, -1, 1, 6.9805))
pocket1 = doc.addObject("PartDesign::Pocket", "Pocket")
body.addObject(pocket1)
pocket1.Profile = sketch11
pocket1.setExpression("Length", "Params.pocket1_length")
pocket1.Reversed = True
doc.recompute()

fillet = doc.addObject("PartDesign::Fillet", "Fillet")
body.addObject(fillet)
fillet.Base = (pocket1, edges_at(pocket1, [
    (26.999, 3.22, -25.62),
    (35.672, 3.22, -25.62),
    (26.999, 0, -28.676),
    (35.672, 0, -28.676),
    (19.662, 0, -28.474),
    (13.409, 0, -28.474),
    (6.148, 0, -28.474),
    (-0.181, 0, -28.474),
]))
fillet.setExpression("Radius", "Params.fillet_radius")

doc.recompute()
